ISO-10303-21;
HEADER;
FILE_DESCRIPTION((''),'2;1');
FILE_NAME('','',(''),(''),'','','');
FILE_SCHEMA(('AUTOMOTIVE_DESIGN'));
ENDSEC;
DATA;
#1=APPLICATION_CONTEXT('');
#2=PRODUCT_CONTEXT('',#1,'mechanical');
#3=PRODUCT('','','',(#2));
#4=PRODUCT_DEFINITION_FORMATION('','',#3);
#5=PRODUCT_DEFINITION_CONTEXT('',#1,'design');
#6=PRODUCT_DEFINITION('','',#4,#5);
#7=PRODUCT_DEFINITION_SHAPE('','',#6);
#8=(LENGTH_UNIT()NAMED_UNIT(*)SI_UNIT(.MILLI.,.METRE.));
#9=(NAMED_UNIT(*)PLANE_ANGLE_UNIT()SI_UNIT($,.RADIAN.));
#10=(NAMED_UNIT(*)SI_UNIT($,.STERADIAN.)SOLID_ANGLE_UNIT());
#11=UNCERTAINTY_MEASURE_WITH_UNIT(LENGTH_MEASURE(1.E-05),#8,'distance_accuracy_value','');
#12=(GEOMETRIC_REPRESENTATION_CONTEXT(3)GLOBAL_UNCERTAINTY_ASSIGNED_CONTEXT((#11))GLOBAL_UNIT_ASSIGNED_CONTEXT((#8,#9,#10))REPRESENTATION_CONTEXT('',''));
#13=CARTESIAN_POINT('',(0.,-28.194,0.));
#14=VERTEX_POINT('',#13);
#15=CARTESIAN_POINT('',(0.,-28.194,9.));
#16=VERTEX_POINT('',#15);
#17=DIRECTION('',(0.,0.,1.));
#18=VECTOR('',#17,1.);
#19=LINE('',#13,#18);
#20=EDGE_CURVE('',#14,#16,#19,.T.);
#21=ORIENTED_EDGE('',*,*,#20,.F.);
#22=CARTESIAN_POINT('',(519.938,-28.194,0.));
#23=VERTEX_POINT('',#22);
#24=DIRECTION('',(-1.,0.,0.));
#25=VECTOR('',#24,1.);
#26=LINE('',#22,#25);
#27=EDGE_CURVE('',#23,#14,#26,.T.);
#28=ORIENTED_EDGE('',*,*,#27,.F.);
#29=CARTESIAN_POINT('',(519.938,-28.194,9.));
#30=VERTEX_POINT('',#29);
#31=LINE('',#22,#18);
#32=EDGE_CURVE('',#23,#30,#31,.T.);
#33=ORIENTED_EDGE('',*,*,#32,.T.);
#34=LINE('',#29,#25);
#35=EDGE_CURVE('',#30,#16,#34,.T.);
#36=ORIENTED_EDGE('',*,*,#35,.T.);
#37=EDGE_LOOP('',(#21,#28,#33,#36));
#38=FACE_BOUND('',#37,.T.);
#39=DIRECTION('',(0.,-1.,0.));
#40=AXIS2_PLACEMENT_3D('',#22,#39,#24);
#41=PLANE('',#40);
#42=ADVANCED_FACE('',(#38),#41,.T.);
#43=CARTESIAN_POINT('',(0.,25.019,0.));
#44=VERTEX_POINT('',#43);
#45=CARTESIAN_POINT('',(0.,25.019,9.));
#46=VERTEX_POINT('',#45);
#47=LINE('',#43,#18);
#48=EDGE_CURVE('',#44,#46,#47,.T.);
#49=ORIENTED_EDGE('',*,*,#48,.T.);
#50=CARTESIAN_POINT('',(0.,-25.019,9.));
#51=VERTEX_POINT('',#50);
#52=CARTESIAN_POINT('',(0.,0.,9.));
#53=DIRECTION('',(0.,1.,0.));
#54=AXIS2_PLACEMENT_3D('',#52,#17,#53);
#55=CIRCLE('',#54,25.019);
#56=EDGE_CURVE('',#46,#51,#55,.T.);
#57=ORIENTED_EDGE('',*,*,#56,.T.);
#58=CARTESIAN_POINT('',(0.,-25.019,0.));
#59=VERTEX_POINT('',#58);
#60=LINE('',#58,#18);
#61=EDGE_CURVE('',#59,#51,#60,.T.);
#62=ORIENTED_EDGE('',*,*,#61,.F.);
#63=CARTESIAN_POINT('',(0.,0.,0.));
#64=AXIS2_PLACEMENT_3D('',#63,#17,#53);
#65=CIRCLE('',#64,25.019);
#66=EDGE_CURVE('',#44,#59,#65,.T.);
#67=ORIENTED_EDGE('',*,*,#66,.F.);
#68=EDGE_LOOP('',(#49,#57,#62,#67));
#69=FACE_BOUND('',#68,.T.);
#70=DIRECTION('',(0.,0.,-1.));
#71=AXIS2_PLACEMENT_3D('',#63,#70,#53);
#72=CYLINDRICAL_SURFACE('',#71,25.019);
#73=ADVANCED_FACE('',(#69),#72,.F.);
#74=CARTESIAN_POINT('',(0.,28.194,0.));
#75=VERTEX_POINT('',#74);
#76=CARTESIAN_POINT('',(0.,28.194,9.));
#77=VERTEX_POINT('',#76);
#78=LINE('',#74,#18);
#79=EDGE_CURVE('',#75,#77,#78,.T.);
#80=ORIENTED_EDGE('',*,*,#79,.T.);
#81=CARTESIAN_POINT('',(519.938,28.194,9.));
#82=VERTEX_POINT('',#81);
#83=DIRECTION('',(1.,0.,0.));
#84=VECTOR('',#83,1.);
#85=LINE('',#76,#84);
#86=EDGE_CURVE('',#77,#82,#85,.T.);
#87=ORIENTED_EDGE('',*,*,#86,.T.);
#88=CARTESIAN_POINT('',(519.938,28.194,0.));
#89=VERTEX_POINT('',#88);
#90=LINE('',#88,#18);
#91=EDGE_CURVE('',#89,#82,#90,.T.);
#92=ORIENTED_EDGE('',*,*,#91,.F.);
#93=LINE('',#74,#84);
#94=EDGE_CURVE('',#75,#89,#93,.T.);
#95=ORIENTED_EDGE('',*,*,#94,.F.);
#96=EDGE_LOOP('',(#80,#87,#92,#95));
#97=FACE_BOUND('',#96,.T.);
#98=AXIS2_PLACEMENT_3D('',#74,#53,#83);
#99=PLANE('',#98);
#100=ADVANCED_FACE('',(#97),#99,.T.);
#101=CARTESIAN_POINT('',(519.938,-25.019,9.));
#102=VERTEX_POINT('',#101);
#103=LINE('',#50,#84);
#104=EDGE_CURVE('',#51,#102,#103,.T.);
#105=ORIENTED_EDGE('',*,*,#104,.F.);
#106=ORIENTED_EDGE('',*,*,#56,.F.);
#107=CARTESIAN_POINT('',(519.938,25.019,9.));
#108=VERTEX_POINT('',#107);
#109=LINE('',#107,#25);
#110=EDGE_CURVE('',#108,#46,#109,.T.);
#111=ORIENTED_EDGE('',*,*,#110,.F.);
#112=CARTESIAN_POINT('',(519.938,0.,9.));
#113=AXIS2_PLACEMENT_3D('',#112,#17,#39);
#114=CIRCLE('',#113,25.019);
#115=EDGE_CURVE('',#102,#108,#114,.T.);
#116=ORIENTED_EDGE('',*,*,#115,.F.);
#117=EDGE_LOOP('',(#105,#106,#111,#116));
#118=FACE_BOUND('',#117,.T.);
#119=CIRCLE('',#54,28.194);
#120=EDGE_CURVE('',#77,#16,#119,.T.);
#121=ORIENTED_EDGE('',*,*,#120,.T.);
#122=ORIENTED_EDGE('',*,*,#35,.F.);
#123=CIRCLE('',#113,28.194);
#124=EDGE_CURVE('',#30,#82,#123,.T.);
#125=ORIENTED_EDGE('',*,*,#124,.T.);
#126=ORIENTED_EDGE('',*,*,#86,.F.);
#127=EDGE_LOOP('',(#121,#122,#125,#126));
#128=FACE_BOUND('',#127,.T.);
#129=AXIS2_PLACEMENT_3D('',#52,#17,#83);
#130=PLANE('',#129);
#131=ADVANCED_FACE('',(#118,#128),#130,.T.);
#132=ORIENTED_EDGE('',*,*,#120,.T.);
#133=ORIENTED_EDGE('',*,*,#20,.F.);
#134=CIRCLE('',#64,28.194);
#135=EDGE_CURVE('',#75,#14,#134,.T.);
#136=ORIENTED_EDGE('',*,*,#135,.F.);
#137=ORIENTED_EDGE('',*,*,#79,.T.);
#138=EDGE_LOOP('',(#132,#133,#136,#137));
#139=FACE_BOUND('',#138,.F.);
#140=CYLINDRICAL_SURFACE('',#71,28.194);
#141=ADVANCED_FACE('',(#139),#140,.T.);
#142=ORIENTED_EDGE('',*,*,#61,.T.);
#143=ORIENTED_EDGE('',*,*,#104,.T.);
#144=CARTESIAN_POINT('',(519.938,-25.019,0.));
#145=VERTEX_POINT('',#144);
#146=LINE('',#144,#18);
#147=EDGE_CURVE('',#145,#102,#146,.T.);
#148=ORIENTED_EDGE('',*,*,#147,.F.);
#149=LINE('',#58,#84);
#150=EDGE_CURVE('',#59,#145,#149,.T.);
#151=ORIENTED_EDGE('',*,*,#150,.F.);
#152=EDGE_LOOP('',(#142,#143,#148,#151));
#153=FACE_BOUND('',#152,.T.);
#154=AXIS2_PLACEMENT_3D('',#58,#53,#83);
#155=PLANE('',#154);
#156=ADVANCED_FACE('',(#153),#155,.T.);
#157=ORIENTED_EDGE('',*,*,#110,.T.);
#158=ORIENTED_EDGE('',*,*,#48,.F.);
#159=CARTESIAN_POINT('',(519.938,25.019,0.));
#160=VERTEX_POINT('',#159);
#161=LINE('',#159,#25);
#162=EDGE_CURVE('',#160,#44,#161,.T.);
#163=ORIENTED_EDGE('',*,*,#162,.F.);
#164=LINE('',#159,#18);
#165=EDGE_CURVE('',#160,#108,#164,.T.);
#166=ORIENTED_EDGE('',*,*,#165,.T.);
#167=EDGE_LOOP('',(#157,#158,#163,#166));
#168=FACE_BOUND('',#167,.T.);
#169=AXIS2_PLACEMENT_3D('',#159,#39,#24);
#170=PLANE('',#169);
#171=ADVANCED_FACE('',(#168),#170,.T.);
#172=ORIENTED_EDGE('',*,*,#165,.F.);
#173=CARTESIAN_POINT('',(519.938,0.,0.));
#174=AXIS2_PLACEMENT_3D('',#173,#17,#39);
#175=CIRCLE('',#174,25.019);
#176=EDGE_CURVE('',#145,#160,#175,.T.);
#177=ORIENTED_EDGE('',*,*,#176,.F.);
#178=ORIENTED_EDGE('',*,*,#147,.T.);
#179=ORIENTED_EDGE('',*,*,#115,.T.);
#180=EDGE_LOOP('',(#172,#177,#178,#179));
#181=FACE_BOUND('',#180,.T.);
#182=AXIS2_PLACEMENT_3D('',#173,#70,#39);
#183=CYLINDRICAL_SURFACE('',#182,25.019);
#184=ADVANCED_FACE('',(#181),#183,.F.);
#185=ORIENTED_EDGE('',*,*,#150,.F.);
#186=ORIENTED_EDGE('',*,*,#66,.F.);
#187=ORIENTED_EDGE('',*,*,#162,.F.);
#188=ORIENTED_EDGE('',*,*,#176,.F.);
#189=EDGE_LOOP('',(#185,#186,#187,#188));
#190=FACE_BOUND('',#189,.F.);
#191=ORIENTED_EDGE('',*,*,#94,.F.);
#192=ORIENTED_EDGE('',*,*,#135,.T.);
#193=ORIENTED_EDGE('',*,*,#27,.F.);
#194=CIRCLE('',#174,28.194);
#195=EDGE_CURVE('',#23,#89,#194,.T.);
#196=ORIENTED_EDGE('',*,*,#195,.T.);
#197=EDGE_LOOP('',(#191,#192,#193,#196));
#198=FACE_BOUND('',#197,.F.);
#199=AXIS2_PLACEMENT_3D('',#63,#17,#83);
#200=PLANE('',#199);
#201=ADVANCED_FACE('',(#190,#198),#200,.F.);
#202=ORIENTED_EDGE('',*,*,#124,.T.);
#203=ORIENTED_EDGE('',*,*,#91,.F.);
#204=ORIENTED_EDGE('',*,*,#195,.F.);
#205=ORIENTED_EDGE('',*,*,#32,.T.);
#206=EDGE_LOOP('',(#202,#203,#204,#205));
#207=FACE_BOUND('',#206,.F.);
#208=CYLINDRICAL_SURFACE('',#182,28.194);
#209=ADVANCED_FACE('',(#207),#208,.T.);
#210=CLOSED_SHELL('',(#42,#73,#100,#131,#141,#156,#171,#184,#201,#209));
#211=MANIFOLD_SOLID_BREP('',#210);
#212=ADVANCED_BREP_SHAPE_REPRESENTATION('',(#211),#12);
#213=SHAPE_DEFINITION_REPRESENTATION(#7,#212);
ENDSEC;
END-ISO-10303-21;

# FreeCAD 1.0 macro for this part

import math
import FreeCAD as App
import Part
import Sketcher
Q = App.Units.Quantity

doc = App.newDocument("Part")
params = doc.addObject("Spreadsheet::Sheet", "Params")
for row, (alias, value) in enumerate([
    ("sketch1_width", "20.47 in"),
    ("sketch1_radius", "1.11 in"),
    ("sketch1_radius2", "0.985 in"),
    ("pad1_length", "9 mm"),
], start=1):
    params.set(f"A{row}", alias)
    params.set(f"B{row}", "=" + value)
    params.setAlias(f"B{row}", alias)

body = doc.addObject("PartDesign::Body", "Body")

sketch1 = body.newObject("Sketcher::SketchObject", "Sketch")
sketch1.AttachmentSupport = (doc.getObject("XY_Plane"), [""])
sketch1.MapMode = "FlatFace"
sketch1.addGeometry(Part.LineSegment(App.Vector(519.938, 28.194, 0), App.Vector(0, 28.194, 0)), False)
sketch1.addGeometry(Part.ArcOfCircle(Part.Circle(App.Vector(0, 0, 0), App.Vector(0, 0, 1), 28.194), math.radians(90), math.radians(270)), False)
sketch1.addGeometry(Part.LineSegment(App.Vector(0, -28.194, 0), App.Vector(519.938, -28.194, 0)), False)
sketch1.addGeometry(Part.ArcOfCircle(Part.Circle(App.Vector(519.938, 0, 0), App.Vector(0, 0, 1), 28.194), math.radians(-90), math.radians(90)), False)
sketch1.addGeometry(Part.LineSegment(App.Vector(519.938, -25.019, 0), App.Vector(0, -25.019, 0)), False)
sketch1.addGeometry(Part.ArcOfCircle(Part.Circle(App.Vector(0, 0, 0), App.Vector(0, 0, 1), 25.019), math.radians(90), math.radians(270)), False)
sketch1.addGeometry(Part.LineSegment(App.Vector(0, 25.019, 0), App.Vector(519.938, 25.019, 0)), False)
sketch1.addGeometry(Part.ArcOfCircle(Part.Circle(App.Vector(519.938, 0, 0), App.Vector(0, 0, 1), 25.019), math.radians(-90), math.radians(90)), False)
sketch1.addConstraint(Sketcher.Constraint("Tangent", 0, 2, 1, 1))
sketch1.addConstraint(Sketcher.Constraint("Tangent", 1, 2, 2, 1))
sketch1.addConstraint(Sketcher.Constraint("Tangent", 2, 2, 3, 1))
sketch1.addConstraint(Sketcher.Constraint("Tangent", 3, 2, 0, 1))
sketch1.addConstraint(Sketcher.Constraint("Tangent", 4, 2, 5, 2))
sketch1.addConstraint(Sketcher.Constraint("Tangent", 5, 1, 6, 1))
sketch1.addConstraint(Sketcher.Constraint("Tangent", 6, 2, 7, 2))
sketch1.addConstraint(Sketcher.Constraint("Tangent", 7, 1, 4, 1))
sketch1.addConstraint(Sketcher.Constraint("Horizontal", 0))
sketch1.addConstraint(Sketcher.Constraint("Horizontal", 2))
sketch1.addConstraint(Sketcher.Constraint("Horizontal", 4))
sketch1.addConstraint(Sketcher.Constraint("Horizontal", 6))
sketch1.addConstraint(Sketcher.Constraint("Coincident", 1, 3, -1, 1))
sketch1.addConstraint(Sketcher.Constraint("Coincident", 5, 3, -1, 1))
sketch1.addConstraint(Sketcher.Constraint("Vertical", 7, 3, 2, 2))
sketch1.addConstraint(Sketcher.Constraint("DistanceX", 0, 2, 0, 1, Q("20.47 in")))
sketch1.addConstraint(Sketcher.Constraint("Radius", 1, Q("1.11 in")))
sketch1.addConstraint(Sketcher.Constraint("Radius", 5, Q("0.985 in")))
sketch1.setExpression("Constraints[15]", "Params.sketch1_width")
sketch1.setExpression("Constraints[16]", "Params.sketch1_radius")
sketch1.setExpression("Constraints[17]", "Params.sketch1_radius2")
pad1 = body.newObject("PartDesign::Pad", "Pad")
pad1.Profile = sketch1
pad1.setExpression("Length", "Params.pad1_length")

doc.recompute()
